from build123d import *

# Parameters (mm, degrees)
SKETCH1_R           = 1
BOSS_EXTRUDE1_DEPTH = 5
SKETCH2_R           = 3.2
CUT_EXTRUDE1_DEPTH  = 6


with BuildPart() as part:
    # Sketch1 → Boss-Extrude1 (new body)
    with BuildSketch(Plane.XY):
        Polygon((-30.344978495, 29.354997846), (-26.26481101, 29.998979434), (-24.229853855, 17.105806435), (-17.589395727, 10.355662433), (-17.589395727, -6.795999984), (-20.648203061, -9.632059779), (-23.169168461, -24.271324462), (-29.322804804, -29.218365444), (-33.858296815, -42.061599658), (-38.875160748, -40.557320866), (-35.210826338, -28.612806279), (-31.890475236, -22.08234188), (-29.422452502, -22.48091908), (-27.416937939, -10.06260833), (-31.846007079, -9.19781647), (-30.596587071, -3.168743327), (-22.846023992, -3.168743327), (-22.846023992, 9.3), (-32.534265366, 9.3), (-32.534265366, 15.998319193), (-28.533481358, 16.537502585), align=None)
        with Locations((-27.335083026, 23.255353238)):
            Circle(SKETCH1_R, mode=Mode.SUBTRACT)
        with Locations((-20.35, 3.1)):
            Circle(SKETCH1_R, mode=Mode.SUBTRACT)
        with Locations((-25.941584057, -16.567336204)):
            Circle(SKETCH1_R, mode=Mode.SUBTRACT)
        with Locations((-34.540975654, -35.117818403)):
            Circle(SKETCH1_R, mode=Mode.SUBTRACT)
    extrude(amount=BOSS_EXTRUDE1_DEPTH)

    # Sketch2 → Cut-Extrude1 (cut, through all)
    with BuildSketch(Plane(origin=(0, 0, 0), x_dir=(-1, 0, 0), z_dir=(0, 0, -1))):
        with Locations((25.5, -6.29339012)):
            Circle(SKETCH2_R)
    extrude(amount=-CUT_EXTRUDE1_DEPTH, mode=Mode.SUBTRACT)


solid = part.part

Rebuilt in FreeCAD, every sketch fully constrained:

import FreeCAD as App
import Part
import Sketcher
from FreeCAD import Vector


def add_polygon(sketch, points):
    """Adds a closed chain of lines whose ends are joined by coincident constraints."""
    first, n = sketch.GeometryCount, len(points)
    for a, b in zip(points, points[1:] + points[:1]):
        sketch.addGeometry(Part.LineSegment(App.Vector(*a, 0), App.Vector(*b, 0)), False)
    for i in range(n):
        sketch.addConstraint(Sketcher.Constraint("Coincident", first + i, 2, first + (i + 1) % n, 1))

doc = App.newDocument("Part")
params = doc.addObject("Spreadsheet::Sheet", "Params")
for row, (alias, value) in enumerate([
    ("sketch1_diameter", "2 mm"),
    ("sketch1_length", "2.5 mm"),
    ("pad1_length", "5 mm"),
    ("sketch2_diameter", "6.4 mm"),
], start=1):
    params.set(f"A{row}", alias)
    params.set(f"B{row}", "=" + value)
    params.setAlias(f"B{row}", alias)

body = doc.addObject("PartDesign::Body", "Body")

# Sketch on XY plane
sketch1 = body.newObject("Sketcher::SketchObject", "Sketch")
sketch1.AttachmentSupport = (doc.getObject("XY_Plane"), [""])
sketch1.MapMode = "FlatFace"
add_polygon(sketch1, [(-26.3, 30), (-30.3, 29.4), (-28.5, 16.5), (-32.5, 16), (-32.5, 9.3), (-22.8, 9.3), (-22.8, -3.2), (-30.6, -3.2), (-31.8, -9.2), (-27.4, -10.1), (-29.4, -22.5), (-31.9, -22.1), (-35.2, -28.6), (-38.9, -40.6), (-33.9, -42.1), (-29.3, -29.2), (-23.2, -24.3), (-20.6, -9.6), (-17.6, -6.8), (-17.6, 10.4), (-24.2, 17.1)])  # lines 0-20
sketch1.addGeometry(Part.Circle(Vector(-25.9, -16.6, 0), Vector(0, 0, 1), 1), False)  # 21
sketch1.addGeometry(Part.Circle(Vector(-34.5, -35.1, 0), Vector(0, 0, 1), 1), False)  # 22
sketch1.addGeometry(Part.Circle(Vector(-20.4, 3.1, 0), Vector(0, 0, 1), 1), False)  # 23
sketch1.addGeometry(Part.Circle(Vector(-27.3, 23.3, 0), Vector(0, 0, 1), 1), False)  # 24
sketch1.addConstraint([
    Sketcher.Constraint("Vertical", 3),
    Sketcher.Constraint("Horizontal", 4),
    Sketcher.Constraint("Vertical", 5),
    Sketcher.Constraint("Horizontal", 6),
    Sketcher.Constraint("Vertical", 18),
    Sketcher.Constraint("Equal", 21, 22),
    Sketcher.Constraint("Equal", 22, 23),
    Sketcher.Constraint("Equal", 23, 24),
    Sketcher.Constraint("Perpendicular", 9, 10),
    Sketcher.Constraint("Perpendicular", 0, 20),
    Sketcher.Constraint("Diameter", 21, 2.0),
    Sketcher.Constraint("Distance", 10, 2.5),
    Sketcher.Constraint("DistanceY", -1, 1, 23, 3, 3.1),
    Sketcher.Constraint("DistanceY", -1, 1, 3, 2, 9.3),
    Sketcher.Constraint("DistanceX", 23, 3, -1, 1, 20.35),
    Sketcher.Constraint("DistanceY", 17, 2, -1, 1, 6.796),
    Sketcher.Constraint("DistanceX", 4, 1, 4, 2, 9.688241),
    Sketcher.Constraint("DistanceY", 3, 2, 3, 1, 6.698319),
    Sketcher.Constraint("DistanceY", 13, 2, -1, 1, 42.0616),
    Sketcher.Constraint("DistanceX", 24, 3, 21, 3, 1.393499),
    Sketcher.Constraint("DistanceX", 1, 2, 24, 3, 1.198398),
    Sketcher.Constraint("DistanceY", 22, 3, 9, 2, 12.636899),
    Sketcher.Constraint("DistanceX", 22, 3, 10, 2, 2.6505),
    Sketcher.Constraint("DistanceY", 12, 2, 9, 2, 18.076402),
    Sketcher.Constraint("Distance", 1, 12.944872),
    Sketcher.Constraint("Distance", 9, 12.57921),
    Sketcher.Constraint("Distance", 12, 12.49395),
    Sketcher.Constraint("Distance", 14, 13.620549),
    Sketcher.Constraint("Distance", 16, 14.854741),
    Sketcher.Constraint("DistanceX", 6, 2, 6, 1, 7.750563),
    Sketcher.Constraint("DistanceY", 5, 2, 5, 1, 12.468743),
    Sketcher.Constraint("DistanceY", 18, 1, 18, 2, 17.151662),
    Sketcher.Constraint("DistanceY", 22, 3, -1, 1, 35.117818),
    Sketcher.Constraint("DistanceX", 0, 2, -1, 1, 30.344978),
    Sketcher.Constraint("DistanceX", 1, 2, -1, 1, 28.533481),
    Sketcher.Constraint("DistanceY", 8, 2, -1, 1, 10.062608),
    Sketcher.Constraint("DistanceX", 12, 2, -1, 1, 38.875161),
    Sketcher.Constraint("DistanceX", 15, 2, -1, 1, 23.169168),
    Sketcher.Constraint("DistanceY", 16, 2, -1, 1, 9.63206),
    Sketcher.Constraint("DistanceX", 20, 2, -1, 1, 26.264811),
    Sketcher.Constraint("DistanceY", -1, 1, 20, 2, 29.998979),
    Sketcher.Constraint("DistanceX", 22, 3, 21, 3, 8.599392),
    Sketcher.Constraint("DistanceY", 21, 3, 24, 3, 39.822689),
    Sketcher.Constraint("DistanceY", 22, 3, 24, 3, 58.373172),
    Sketcher.Constraint("DistanceY", 1, 2, 24, 3, 6.717851),
    Sketcher.Constraint("DistanceX", 2, 2, 21, 3, 6.592681),
    Sketcher.Constraint("DistanceX", 7, 2, 6, 2, 1.24942),
    Sketcher.Constraint("DistanceY", 21, 3, 7, 2, 7.36952),
    Sketcher.Constraint("DistanceX", 11, 2, 22, 3, 0.669851),
    Sketcher.Constraint("DistanceX", 22, 3, 13, 2, 0.682679),
    Sketcher.Constraint("DistanceX", 11, 2, 14, 2, 5.888022),
    Sketcher.Constraint("DistanceY", 14, 2, 15, 2, 4.947041),
    Sketcher.Constraint("DistanceX", 5, 2, 17, 2, 5.256628),
    Sketcher.Constraint("DistanceX", 24, 3, 19, 2, 3.105229),
])
sketch1.setExpression("Constraints[31]", "Params.sketch1_diameter")
sketch1.setExpression("Constraints[32]", "Params.sketch1_length")
pad1 = body.newObject("PartDesign::Pad", "Pad")
pad1.Profile = sketch1
pad1.setExpression("Length", "Params.pad1_length")

# Sketch on XY plane
sketch2 = body.newObject("Sketcher::SketchObject", "Sketch001")
sketch2.AttachmentSupport = (doc.getObject("XY_Plane"), [""])
sketch2.MapMode = "FlatFace"
sketch2.addGeometry(Part.Circle(Vector(-25.5, -6.3, 0), Vector(0, 0, 1), 3.2), False)
sketch2.addConstraint([
    Sketcher.Constraint("Diameter", 0, 6.4),
    Sketcher.Constraint("DistanceX", 0, 3, -1, 1, 25.5),
    Sketcher.Constraint("DistanceY", 0, 3, -1, 1, 6.29339),
])
sketch2.setExpression("Constraints[0]", "Params.sketch2_diameter")
pocket1 = body.newObject("PartDesign::Pocket", "Pocket")
pocket1.Profile = sketch2
pocket1.Type = "ThroughAll"
pocket1.Reversed = True

doc.recompute()
